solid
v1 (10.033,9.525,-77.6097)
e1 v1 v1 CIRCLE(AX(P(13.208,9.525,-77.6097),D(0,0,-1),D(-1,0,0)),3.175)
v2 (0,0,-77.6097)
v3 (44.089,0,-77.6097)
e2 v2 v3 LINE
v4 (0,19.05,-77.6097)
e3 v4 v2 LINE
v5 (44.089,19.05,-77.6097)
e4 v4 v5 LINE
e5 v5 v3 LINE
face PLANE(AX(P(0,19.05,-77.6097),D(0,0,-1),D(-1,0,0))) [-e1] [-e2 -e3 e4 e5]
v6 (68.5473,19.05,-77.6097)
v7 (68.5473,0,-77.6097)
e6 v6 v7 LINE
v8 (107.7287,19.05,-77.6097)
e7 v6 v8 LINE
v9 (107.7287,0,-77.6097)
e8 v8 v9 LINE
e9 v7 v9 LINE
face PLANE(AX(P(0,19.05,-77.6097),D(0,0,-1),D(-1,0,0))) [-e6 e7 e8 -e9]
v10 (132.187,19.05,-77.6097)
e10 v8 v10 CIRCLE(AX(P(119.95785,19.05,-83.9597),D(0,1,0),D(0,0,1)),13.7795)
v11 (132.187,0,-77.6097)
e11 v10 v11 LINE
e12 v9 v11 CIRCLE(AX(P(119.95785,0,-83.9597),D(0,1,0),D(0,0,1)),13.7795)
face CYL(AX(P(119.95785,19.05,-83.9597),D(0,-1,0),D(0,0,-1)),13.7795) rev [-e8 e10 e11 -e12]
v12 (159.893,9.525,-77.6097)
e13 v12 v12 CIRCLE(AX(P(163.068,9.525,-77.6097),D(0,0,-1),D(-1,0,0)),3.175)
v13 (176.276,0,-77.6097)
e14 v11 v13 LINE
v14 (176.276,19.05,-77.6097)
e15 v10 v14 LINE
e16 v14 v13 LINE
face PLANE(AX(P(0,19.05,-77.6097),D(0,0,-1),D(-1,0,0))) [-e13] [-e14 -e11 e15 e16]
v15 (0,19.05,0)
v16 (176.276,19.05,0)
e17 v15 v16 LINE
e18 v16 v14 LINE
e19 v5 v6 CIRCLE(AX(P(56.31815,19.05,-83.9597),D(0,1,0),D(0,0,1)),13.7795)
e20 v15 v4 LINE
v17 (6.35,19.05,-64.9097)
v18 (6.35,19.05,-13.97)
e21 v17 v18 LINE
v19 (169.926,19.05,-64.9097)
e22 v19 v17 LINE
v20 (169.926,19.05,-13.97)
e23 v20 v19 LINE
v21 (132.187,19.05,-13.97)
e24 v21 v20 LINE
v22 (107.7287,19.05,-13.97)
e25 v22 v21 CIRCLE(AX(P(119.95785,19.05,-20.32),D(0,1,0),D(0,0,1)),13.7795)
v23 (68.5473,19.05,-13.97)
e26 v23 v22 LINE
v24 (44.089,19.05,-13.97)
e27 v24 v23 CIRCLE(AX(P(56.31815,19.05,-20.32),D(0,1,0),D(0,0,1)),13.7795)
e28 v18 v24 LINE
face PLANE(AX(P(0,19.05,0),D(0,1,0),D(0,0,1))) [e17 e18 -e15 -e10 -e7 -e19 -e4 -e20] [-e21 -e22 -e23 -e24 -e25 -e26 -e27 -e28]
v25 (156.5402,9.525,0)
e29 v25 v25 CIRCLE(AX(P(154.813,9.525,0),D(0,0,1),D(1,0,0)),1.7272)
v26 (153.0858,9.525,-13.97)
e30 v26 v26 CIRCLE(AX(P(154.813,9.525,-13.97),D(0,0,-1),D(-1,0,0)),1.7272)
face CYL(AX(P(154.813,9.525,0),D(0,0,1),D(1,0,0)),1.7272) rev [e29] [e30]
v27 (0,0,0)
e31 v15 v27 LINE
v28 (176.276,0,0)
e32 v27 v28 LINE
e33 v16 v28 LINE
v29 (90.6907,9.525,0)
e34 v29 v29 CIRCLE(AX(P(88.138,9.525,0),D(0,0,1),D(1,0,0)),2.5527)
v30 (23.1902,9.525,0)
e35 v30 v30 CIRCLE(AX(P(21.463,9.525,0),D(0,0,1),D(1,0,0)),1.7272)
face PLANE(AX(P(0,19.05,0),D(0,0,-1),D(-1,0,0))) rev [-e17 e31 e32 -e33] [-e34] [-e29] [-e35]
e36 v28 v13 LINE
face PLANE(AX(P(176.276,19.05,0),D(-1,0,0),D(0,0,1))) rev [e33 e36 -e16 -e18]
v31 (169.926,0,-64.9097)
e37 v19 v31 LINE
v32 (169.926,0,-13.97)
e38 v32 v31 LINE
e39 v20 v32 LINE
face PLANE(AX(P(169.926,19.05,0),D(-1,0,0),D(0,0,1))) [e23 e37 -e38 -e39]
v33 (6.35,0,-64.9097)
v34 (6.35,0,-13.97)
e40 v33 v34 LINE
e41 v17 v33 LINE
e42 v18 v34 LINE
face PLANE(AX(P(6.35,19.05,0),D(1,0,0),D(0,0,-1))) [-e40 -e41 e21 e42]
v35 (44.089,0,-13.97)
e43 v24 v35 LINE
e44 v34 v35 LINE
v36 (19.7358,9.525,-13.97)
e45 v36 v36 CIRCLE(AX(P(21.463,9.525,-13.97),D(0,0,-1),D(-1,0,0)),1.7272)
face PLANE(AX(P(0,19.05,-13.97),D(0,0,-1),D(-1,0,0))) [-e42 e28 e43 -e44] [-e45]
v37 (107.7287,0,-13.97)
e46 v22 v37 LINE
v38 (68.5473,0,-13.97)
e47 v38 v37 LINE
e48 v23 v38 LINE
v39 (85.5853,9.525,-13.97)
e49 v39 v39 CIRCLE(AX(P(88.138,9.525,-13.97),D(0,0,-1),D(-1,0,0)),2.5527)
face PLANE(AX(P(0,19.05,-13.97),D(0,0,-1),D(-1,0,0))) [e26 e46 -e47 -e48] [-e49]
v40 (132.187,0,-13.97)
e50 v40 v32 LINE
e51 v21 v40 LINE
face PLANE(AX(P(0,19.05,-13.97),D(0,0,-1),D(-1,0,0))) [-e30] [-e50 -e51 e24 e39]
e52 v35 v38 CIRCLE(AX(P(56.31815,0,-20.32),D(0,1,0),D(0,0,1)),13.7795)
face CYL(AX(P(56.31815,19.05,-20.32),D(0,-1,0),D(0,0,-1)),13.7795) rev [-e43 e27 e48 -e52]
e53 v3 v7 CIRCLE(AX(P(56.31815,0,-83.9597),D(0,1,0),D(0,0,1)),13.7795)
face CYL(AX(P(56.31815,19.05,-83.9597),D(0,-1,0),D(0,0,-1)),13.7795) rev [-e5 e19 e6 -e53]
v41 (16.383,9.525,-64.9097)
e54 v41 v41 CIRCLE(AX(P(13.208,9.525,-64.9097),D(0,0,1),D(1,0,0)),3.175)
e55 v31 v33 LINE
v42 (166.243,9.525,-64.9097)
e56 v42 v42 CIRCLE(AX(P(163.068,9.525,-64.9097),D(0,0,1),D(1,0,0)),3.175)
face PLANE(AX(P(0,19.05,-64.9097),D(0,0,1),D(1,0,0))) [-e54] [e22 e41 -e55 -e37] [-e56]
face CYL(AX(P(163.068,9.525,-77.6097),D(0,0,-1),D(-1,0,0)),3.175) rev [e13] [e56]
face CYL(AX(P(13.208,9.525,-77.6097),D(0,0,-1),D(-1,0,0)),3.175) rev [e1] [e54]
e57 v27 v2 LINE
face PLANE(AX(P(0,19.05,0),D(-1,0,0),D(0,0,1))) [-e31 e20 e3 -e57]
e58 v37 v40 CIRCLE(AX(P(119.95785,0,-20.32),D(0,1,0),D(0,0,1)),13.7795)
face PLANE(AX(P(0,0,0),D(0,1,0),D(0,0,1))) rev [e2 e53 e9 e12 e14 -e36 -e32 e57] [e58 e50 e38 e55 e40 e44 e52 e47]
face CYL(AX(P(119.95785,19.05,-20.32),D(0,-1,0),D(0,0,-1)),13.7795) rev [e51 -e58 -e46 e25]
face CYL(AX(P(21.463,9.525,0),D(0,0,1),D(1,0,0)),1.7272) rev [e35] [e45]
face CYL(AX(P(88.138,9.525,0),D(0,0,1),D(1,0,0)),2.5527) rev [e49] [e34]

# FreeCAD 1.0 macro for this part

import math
import FreeCAD as App
import Part
import Sketcher

V = App.Vector
Q = App.Units.Quantity

doc = App.newDocument("Part")
body = doc.addObject("PartDesign::Body", "Body")

# Sketch on XZ plane
sketch1 = body.newObject("Sketcher::SketchObject", "Sketch")
sketch1.AttachmentSupport = (doc.getObject("XZ_Plane"), [""])
sketch1.MapMode = "FlatFace"
sketch1.addGeometry(Part.LineSegment(V(107.7287, -77.6097, 0), V(68.5473, -77.6097, 0)), False)
sketch1.addGeometry(Part.ArcOfCircle(Part.Circle(V(56.31815, -83.9597, 0), V(0, 0, 1), 13.7795), math.radians(27.440646), math.radians(152.559354)), False)
sketch1.addGeometry(Part.LineSegment(V(44.089, -77.6097, 0), V(0, -77.6097, 0)), False)
sketch1.addGeometry(Part.LineSegment(V(0, -77.6097, 0), V(0, 0, 0)), False)
sketch1.addGeometry(Part.LineSegment(V(0, 0, 0), V(176.276, 0, 0)), False)
sketch1.addGeometry(Part.LineSegment(V(176.276, 0, 0), V(176.276, -77.6097, 0)), False)
sketch1.addGeometry(Part.LineSegment(V(176.276, -77.6097, 0), V(132.187, -77.6097, 0)), False)
sketch1.addGeometry(Part.ArcOfCircle(Part.Circle(V(119.95785, -83.9597, 0), V(0, 0, 1), 13.7795), math.radians(27.440646), math.radians(152.559354)), False)
sketch1.addGeometry(Part.LineSegment(V(169.926, -64.9097, 0), V(169.926, -13.97, 0)), False)
sketch1.addGeometry(Part.LineSegment(V(169.926, -13.97, 0), V(132.187, -13.97, 0)), False)
sketch1.addGeometry(Part.ArcOfCircle(Part.Circle(V(119.95785, -20.32, 0), V(0, 0, 1), 13.7795), math.radians(27.440646), math.radians(152.559354)), False)
sketch1.addGeometry(Part.LineSegment(V(107.7287, -13.97, 0), V(68.5473, -13.97, 0)), False)
sketch1.addGeometry(Part.ArcOfCircle(Part.Circle(V(56.31815, -20.32, 0), V(0, 0, 1), 13.7795), math.radians(27.440646), math.radians(152.559354)), False)
sketch1.addGeometry(Part.LineSegment(V(44.089, -13.97, 0), V(6.35, -13.97, 0)), False)
sketch1.addGeometry(Part.LineSegment(V(6.35, -13.97, 0), V(6.35, -64.9097, 0)), False)
sketch1.addGeometry(Part.LineSegment(V(6.35, -64.9097, 0), V(169.926, -64.9097, 0)), False)
sketch1.addConstraint(Sketcher.Constraint("Coincident", 0, 2, 1, 1))
sketch1.addConstraint(Sketcher.Constraint("Coincident", 1, 2, 2, 1))
sketch1.addConstraint(Sketcher.Constraint("Coincident", 2, 2, 3, 1))
sketch1.addConstraint(Sketcher.Constraint("Coincident", 3, 2, 4, 1))
sketch1.addConstraint(Sketcher.Constraint("Coincident", 4, 2, 5, 1))
sketch1.addConstraint(Sketcher.Constraint("Coincident", 5, 2, 6, 1))
sketch1.addConstraint(Sketcher.Constraint("Coincident", 6, 2, 7, 1))
sketch1.addConstraint(Sketcher.Constraint("Coincident", 7, 2, 0, 1))
sketch1.addConstraint(Sketcher.Constraint("Coincident", 8, 2, 9, 1))
sketch1.addConstraint(Sketcher.Constraint("Coincident", 9, 2, 10, 1))
sketch1.addConstraint(Sketcher.Constraint("Coincident", 10, 2, 11, 1))
sketch1.addConstraint(Sketcher.Constraint("Coincident", 11, 2, 12, 1))
sketch1.addConstraint(Sketcher.Constraint("Coincident", 12, 2, 13, 1))
sketch1.addConstraint(Sketcher.Constraint("Coincident", 13, 2, 14, 1))
sketch1.addConstraint(Sketcher.Constraint("Coincident", 14, 2, 15, 1))
sketch1.addConstraint(Sketcher.Constraint("Coincident", 15, 2, 8, 1))
sketch1.addConstraint(Sketcher.Constraint("Horizontal", 0))
sketch1.addConstraint(Sketcher.Constraint("Horizontal", 2))
sketch1.addConstraint(Sketcher.Constraint("Vertical", 3))
sketch1.addConstraint(Sketcher.Constraint("Horizontal", 4))
sketch1.addConstraint(Sketcher.Constraint("Vertical", 5))
sketch1.addConstraint(Sketcher.Constraint("Horizontal", 6))
sketch1.addConstraint(Sketcher.Constraint("Vertical", 8))
sketch1.addConstraint(Sketcher.Constraint("Horizontal", 9))
sketch1.addConstraint(Sketcher.Constraint("Horizontal", 11))
sketch1.addConstraint(Sketcher.Constraint("Horizontal", 13))
sketch1.addConstraint(Sketcher.Constraint("Vertical", 14))
sketch1.addConstraint(Sketcher.Constraint("Horizontal", 15))
sketch1.addConstraint(Sketcher.Constraint("Coincident", 3, 2, -1, 1))
sketch1.addConstraint(Sketcher.Constraint("Equal", 1, 7))
sketch1.addConstraint(Sketcher.Constraint("Equal", 7, 10))
sketch1.addConstraint(Sketcher.Constraint("Equal", 10, 12))
sketch1.addConstraint(Sketcher.Constraint("Horizontal", 1, 3, 7, 3))
sketch1.addConstraint(Sketcher.Constraint("Horizontal", 10, 3, 12, 3))
sketch1.addConstraint(Sketcher.Constraint("Horizontal", 0, 2, 1, 2))
sketch1.addConstraint(Sketcher.Constraint("Horizontal", 2, 2, 5, 2))
sketch1.addConstraint(Sketcher.Constraint("Horizontal", 9, 2, 10, 2))
sketch1.addConstraint(Sketcher.Constraint("Horizontal", 11, 2, 12, 2))
sketch1.addConstraint(Sketcher.Constraint("Vertical", 7, 3, 10, 3))
sketch1.addConstraint(Sketcher.Constraint("Vertical", 1, 3, 12, 3))
sketch1.addConstraint(Sketcher.Constraint("Vertical", 6, 2, 9, 2))
sketch1.addConstraint(Sketcher.Constraint("Equal", 2, 6))
sketch1.addConstraint(Sketcher.Constraint("Equal", 9, 13))
sketch1.addConstraint(Sketcher.Constraint("DistanceX", 4, 1, 4, 2, Q("6.94 in")))
sketch1.addConstraint(Sketcher.Constraint("DistanceX", 15, 1, 15, 2, Q("6.44 in")))
sketch1.addConstraint(Sketcher.Constraint("DistanceY", 10, 3, -1, 1, Q("0.8 in")))
sketch1.addConstraint(Sketcher.Constraint("Radius", 1, Q("0.5425 in")))
sketch1.addConstraint(Sketcher.Constraint("DistanceY", 2, 2, 14, 2, Q("0.5 in")))
sketch1.addConstraint(Sketcher.Constraint("DistanceY", 8, 2, -1, 1, Q("0.55 in")))
sketch1.addConstraint(Sketcher.Constraint("DistanceY", 3, 1, 3, 2, Q("3.0555 in")))
sketch1.addConstraint(Sketcher.Constraint("DistanceX", 0, 2, 0, 1, Q("39.181399 mm")))
pad1 = body.newObject("PartDesign::Pad", "Pad")
pad1.Profile = sketch1
pad1.Length = Q("0.75 in")
pad1.Reversed = True

# Sketch on XY plane
sketch2 = body.newObject("Sketcher::SketchObject", "Sketch001")
sketch2.AttachmentSupport = (doc.getObject("XY_Plane"), [""])
sketch2.MapMode = "FlatFace"
sketch2.addGeometry(Part.Circle(V(154.813, 9.525, 0), V(0, 0, 1), 1.7272), False)
sketch2.addGeometry(Part.Circle(V(21.463, 9.525, 0), V(0, 0, 1), 1.7272), False)
sketch2.addConstraint(Sketcher.Constraint("Equal", 0, 1))
sketch2.addConstraint(Sketcher.Constraint("Horizontal", 0, 3, 1, 3))
sketch2.addConstraint(Sketcher.Constraint("Diameter", 0, Q("0.136 in")))
sketch2.addConstraint(Sketcher.Constraint("DistanceX", 1, 3, 0, 3, Q("5.25 in")))
sketch2.addConstraint(Sketcher.Constraint("DistanceX", -1, 1, 0, 3, Q("6.095 in")))
sketch2.addConstraint(Sketcher.Constraint("DistanceY", -1, 1, 0, 3, Q("0.375 in")))
doc.recompute()
hole = body.newObject("PartDesign::Hole", "Hole")
hole.Profile = sketch2
hole.ThreadType = "None"
hole.Diameter = Q("0.136 in")
hole.DepthType = "Dimension"
hole.Depth = Q("0.55 in")
hole.DrillPoint = "Flat"

# Sketch on XY plane
sketch3 = body.newObject("Sketcher::SketchObject", "Sketch002")
sketch3.AttachmentSupport = (doc.getObject("XY_Plane"), [""])
sketch3.MapMode = "FlatFace"
sketch3.addGeometry(Part.Circle(V(88.138, 9.525, 0), V(0, 0, 1), 2.5527), False)
sketch3.addConstraint(Sketcher.Constraint("Diameter", 0, Q("0.201 in")))
sketch3.addConstraint(Sketcher.Constraint("DistanceX", -1, 1, 0, 3, Q("3.47 in")))
sketch3.addConstraint(Sketcher.Constraint("DistanceY", -1, 1, 0, 3, Q("0.375 in")))
doc.recompute()
hole2 = body.newObject("PartDesign::Hole", "Hole001")
hole2.Profile = sketch3
hole2.ThreadType = "None"
hole2.Diameter = Q("0.201 in")
hole2.DepthType = "Dimension"
hole2.Depth = Q("0.55 in")
hole2.DrillPoint = "Flat"

# Sketch on XY plane
sketch4 = body.newObject("Sketcher::SketchObject", "Sketch003")
sketch4.AttachmentSupport = (doc.getObject("XY_Plane"), [""])
sketch4.MapMode = "FlatFace"
sketch4.AttachmentOffset = App.Placement(V(0, 0, -3.0555 * 25.4), App.Rotation())
sketch4.addGeometry(Part.Circle(V(13.208, 9.525, 0), V(0, 0, 1), 3.175), False)
sketch4.addGeometry(Part.Circle(V(163.068, 9.525, 0), V(0, 0, 1), 3.175), False)
sketch4.addConstraint(Sketcher.Constraint("Equal", 0, 1))
sketch4.addConstraint(Sketcher.Constraint("Horizontal", 0, 3, 1, 3))
sketch4.addConstraint(Sketcher.Constraint("Diameter", 0, Q("0.25 in")))
sketch4.addConstraint(Sketcher.Constraint("DistanceX", 0, 3, 1, 3, Q("5.9 in")))
sketch4.addConstraint(Sketcher.Constraint("DistanceX", -1, 1, 0, 3, Q("0.52 in")))
sketch4.addConstraint(Sketcher.Constraint("DistanceY", -1, 1, 0, 3, Q("0.375 in")))
doc.recompute()
hole3 = body.newObject("PartDesign::Hole", "Hole002")
hole3.Profile = sketch4
hole3.ThreadType = "None"
hole3.Diameter = Q("0.25 in")
hole3.DepthType = "Dimension"
hole3.Depth = Q("0.5 in")
hole3.DrillPoint = "Flat"
hole3.Reversed = True

doc.recompute()
